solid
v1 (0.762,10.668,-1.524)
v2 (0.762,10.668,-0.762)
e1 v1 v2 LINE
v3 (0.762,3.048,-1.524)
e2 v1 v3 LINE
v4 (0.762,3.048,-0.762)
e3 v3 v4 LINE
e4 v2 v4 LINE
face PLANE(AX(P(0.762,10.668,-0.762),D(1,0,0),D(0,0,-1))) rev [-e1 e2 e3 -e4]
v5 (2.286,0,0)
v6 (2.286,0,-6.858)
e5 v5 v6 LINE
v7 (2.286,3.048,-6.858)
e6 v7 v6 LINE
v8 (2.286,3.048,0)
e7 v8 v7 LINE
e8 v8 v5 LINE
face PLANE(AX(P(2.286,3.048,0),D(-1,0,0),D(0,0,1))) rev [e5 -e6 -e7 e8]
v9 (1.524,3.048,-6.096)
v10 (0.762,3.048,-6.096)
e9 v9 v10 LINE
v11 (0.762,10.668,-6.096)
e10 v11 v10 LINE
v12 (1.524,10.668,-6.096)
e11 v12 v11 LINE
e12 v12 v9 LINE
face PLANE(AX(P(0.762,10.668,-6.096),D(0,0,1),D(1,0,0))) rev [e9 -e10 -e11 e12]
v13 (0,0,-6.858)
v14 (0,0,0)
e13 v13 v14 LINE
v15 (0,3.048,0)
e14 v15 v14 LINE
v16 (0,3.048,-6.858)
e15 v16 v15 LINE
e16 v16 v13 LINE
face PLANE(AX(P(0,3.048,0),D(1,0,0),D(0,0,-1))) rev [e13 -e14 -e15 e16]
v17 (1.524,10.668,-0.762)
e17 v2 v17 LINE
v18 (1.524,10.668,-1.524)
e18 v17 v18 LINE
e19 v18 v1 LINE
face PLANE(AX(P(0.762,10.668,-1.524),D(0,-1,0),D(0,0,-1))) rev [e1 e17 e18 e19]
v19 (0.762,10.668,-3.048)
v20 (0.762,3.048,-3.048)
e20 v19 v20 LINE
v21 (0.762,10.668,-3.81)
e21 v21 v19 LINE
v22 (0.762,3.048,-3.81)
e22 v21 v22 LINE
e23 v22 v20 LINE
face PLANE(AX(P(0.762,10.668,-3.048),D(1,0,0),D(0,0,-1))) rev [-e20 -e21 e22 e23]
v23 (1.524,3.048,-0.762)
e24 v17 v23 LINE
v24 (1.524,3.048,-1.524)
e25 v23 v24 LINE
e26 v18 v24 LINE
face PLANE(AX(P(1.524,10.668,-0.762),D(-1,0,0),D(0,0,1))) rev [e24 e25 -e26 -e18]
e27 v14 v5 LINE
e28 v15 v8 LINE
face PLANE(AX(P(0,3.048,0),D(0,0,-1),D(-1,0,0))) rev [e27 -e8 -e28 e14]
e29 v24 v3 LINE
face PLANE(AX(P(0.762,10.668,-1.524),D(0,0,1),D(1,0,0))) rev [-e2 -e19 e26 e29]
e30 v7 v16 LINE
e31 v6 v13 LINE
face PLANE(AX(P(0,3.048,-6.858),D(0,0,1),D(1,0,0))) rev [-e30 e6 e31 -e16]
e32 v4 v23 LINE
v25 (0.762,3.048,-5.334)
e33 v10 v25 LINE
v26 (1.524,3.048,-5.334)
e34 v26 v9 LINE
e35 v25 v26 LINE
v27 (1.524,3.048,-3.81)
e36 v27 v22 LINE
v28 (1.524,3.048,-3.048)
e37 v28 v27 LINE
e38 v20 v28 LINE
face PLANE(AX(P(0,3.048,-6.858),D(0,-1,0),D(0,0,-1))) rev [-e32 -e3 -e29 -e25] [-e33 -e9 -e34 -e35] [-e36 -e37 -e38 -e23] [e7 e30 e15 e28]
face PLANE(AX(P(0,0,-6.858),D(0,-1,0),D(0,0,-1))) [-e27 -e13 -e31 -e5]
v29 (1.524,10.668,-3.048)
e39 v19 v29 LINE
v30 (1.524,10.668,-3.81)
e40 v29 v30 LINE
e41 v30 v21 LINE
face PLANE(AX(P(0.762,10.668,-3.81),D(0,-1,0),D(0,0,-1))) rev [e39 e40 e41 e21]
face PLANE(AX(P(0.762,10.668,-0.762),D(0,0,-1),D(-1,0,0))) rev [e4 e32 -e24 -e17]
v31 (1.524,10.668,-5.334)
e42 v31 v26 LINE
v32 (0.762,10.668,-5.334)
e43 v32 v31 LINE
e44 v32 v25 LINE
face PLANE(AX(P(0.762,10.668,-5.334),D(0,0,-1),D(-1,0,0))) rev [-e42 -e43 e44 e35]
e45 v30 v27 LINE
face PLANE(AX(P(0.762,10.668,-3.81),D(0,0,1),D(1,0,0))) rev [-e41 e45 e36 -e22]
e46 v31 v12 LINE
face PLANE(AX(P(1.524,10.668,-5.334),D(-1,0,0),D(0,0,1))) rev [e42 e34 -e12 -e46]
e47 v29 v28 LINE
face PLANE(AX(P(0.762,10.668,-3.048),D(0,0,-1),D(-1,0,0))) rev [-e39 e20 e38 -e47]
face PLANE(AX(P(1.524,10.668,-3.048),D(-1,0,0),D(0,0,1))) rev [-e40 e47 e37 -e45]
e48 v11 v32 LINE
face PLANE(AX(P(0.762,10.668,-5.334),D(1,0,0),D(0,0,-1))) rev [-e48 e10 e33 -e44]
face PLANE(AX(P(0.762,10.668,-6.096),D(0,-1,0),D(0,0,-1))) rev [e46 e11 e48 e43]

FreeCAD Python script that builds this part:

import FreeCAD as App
import Part
import Sketcher
Q = App.Units.Quantity

doc = App.newDocument("Part")
body = doc.addObject("PartDesign::Body", "Body")

# Sketch on XZ plane
sketch1 = doc.addObject("Sketcher::SketchObject", "Sketch")
body.addObject(sketch1)
sketch1.AttachmentSupport = (doc.XZ_Plane, [""])
sketch1.MapMode = "FlatFace"
sketch1.addGeometry(Part.LineSegment(App.Vector(0, -6.858, 0), App.Vector(0, 0, 0)), False)
sketch1.addGeometry(Part.LineSegment(App.Vector(0, 0, 0), App.Vector(2.286, 0, 0)), False)
sketch1.addGeometry(Part.LineSegment(App.Vector(2.286, 0, 0), App.Vector(2.286, -6.858, 0)), False)
sketch1.addGeometry(Part.LineSegment(App.Vector(2.286, -6.858, 0), App.Vector(0, -6.858, 0)), False)
sketch1.addConstraint(Sketcher.Constraint("Coincident", 0, 2, 1, 1))
sketch1.addConstraint(Sketcher.Constraint("Coincident", 1, 2, 2, 1))
sketch1.addConstraint(Sketcher.Constraint("Coincident", 2, 2, 3, 1))
sketch1.addConstraint(Sketcher.Constraint("Coincident", 3, 2, 0, 1))
sketch1.addConstraint(Sketcher.Constraint("Vertical", 0))
sketch1.addConstraint(Sketcher.Constraint("Horizontal", 1))
sketch1.addConstraint(Sketcher.Constraint("Vertical", 2))
sketch1.addConstraint(Sketcher.Constraint("Horizontal", 3))
sketch1.addConstraint(Sketcher.Constraint("Coincident", 0, 2, -1, 1))
sketch1.addConstraint(Sketcher.Constraint("DistanceX", 1, 1, 1, 2, Q("0.09 in")))
sketch1.addConstraint(Sketcher.Constraint("DistanceY", 0, 1, 0, 2, Q("0.27 in")))
pad1 = doc.addObject("PartDesign::Pad", "Pad")
body.addObject(pad1)
pad1.Profile = sketch1
pad1.Length = Q("0.12 in")
pad1.Reversed = True

# Sketch on XZ plane
sketch2 = doc.addObject("Sketcher::SketchObject", "Sketch001")
body.addObject(sketch2)
sketch2.AttachmentSupport = (doc.XZ_Plane, [""])
sketch2.MapMode = "FlatFace"
sketch2.AttachmentOffset = App.Placement(App.Vector(0, 0, -0.12 * 25.4), App.Rotation())
sketch2.addGeometry(Part.LineSegment(App.Vector(0.762, -1.524, 0), App.Vector(0.762, -0.762, 0)), False)
sketch2.addGeometry(Part.LineSegment(App.Vector(0.762, -0.762, 0), App.Vector(1.524, -0.762, 0)), False)
sketch2.addGeometry(Part.LineSegment(App.Vector(1.524, -0.762, 0), App.Vector(1.524, -1.524, 0)), False)
sketch2.addGeometry(Part.LineSegment(App.Vector(1.524, -1.524, 0), App.Vector(0.762, -1.524, 0)), False)
sketch2.addGeometry(Part.LineSegment(App.Vector(0.762, -6.096, 0), App.Vector(0.762, -5.334, 0)), False)
sketch2.addGeometry(Part.LineSegment(App.Vector(0.762, -5.334, 0), App.Vector(1.524, -5.334, 0)), False)
sketch2.addGeometry(Part.LineSegment(App.Vector(1.524, -5.334, 0), App.Vector(1.524, -6.096, 0)), False)
sketch2.addGeometry(Part.LineSegment(App.Vector(1.524, -6.096, 0), App.Vector(0.762, -6.096, 0)), False)
sketch2.addGeometry(Part.LineSegment(App.Vector(0.762, -3.81, 0), App.Vector(0.762, -3.048, 0)), False)
sketch2.addGeometry(Part.LineSegment(App.Vector(0.762, -3.048, 0), App.Vector(1.524, -3.048, 0)), False)
sketch2.addGeometry(Part.LineSegment(App.Vector(1.524, -3.048, 0), App.Vector(1.524, -3.81, 0)), False)
sketch2.addGeometry(Part.LineSegment(App.Vector(1.524, -3.81, 0), App.Vector(0.762, -3.81, 0)), False)
sketch2.addConstraint(Sketcher.Constraint("Coincident", 0, 2, 1, 1))
sketch2.addConstraint(Sketcher.Constraint("Coincident", 1, 2, 2, 1))
sketch2.addConstraint(Sketcher.Constraint("Coincident", 2, 2, 3, 1))
sketch2.addConstraint(Sketcher.Constraint("Coincident", 3, 2, 0, 1))
sketch2.addConstraint(Sketcher.Constraint("Coincident", 4, 2, 5, 1))
sketch2.addConstraint(Sketcher.Constraint("Coincident", 5, 2, 6, 1))
sketch2.addConstraint(Sketcher.Constraint("Coincident", 6, 2, 7, 1))
sketch2.addConstraint(Sketcher.Constraint("Coincident", 7, 2, 4, 1))
sketch2.addConstraint(Sketcher.Constraint("Coincident", 8, 2, 9, 1))
sketch2.addConstraint(Sketcher.Constraint("Coincident", 9, 2, 10, 1))
sketch2.addConstraint(Sketcher.Constraint("Coincident", 10, 2, 11, 1))
sketch2.addConstraint(Sketcher.Constraint("Coincident", 11, 2, 8, 1))
sketch2.addConstraint(Sketcher.Constraint("Vertical", 0))
sketch2.addConstraint(Sketcher.Constraint("Horizontal", 1))
sketch2.addConstraint(Sketcher.Constraint("Vertical", 2))
sketch2.addConstraint(Sketcher.Constraint("Horizontal", 3))
sketch2.addConstraint(Sketcher.Constraint("Vertical", 4))
sketch2.addConstraint(Sketcher.Constraint("Horizontal", 5))
sketch2.addConstraint(Sketcher.Constraint("Vertical", 6))
sketch2.addConstraint(Sketcher.Constraint("Horizontal", 7))
sketch2.addConstraint(Sketcher.Constraint("Vertical", 8))
sketch2.addConstraint(Sketcher.Constraint("Horizontal", 9))
sketch2.addConstraint(Sketcher.Constraint("Vertical", 10))
sketch2.addConstraint(Sketcher.Constraint("Horizontal", 11))
sketch2.addConstraint(Sketcher.Constraint("Vertical", 3, 2, 4, 2))
sketch2.addConstraint(Sketcher.Constraint("Vertical", 2, 2, 5, 2))
sketch2.addConstraint(Sketcher.Constraint("Vertical", 7, 2, 8, 2))
sketch2.addConstraint(Sketcher.Constraint("Vertical", 6, 2, 9, 2))
sketch2.addConstraint(Sketcher.Constraint("Equal", 11, 0))
sketch2.addConstraint(Sketcher.Constraint("Equal", 2, 4))
sketch2.addConstraint(Sketcher.Constraint("Equal", 6, 8))
sketch2.addConstraint(Sketcher.Constraint("DistanceX", 1, 1, 1, 2, Q("0.03 in")))
sketch2.addConstraint(Sketcher.Constraint("DistanceX", -1, 1, 0, 2, Q("0.03 in")))
sketch2.addConstraint(Sketcher.Constraint("DistanceY", 0, 2, -1, 1, Q("0.03 in")))
sketch2.addConstraint(Sketcher.Constraint("DistanceY", 4, 2, -1, 1, Q("0.21 in")))
sketch2.addConstraint(Sketcher.Constraint("DistanceY", 8, 2, -1, 1, Q("0.12 in")))
pad2 = doc.addObject("PartDesign::Pad", "Pad001")
body.addObject(pad2)
pad2.Profile = sketch2
pad2.Length = Q("0.3 in")
pad2.Reversed = True

doc.recompute()
